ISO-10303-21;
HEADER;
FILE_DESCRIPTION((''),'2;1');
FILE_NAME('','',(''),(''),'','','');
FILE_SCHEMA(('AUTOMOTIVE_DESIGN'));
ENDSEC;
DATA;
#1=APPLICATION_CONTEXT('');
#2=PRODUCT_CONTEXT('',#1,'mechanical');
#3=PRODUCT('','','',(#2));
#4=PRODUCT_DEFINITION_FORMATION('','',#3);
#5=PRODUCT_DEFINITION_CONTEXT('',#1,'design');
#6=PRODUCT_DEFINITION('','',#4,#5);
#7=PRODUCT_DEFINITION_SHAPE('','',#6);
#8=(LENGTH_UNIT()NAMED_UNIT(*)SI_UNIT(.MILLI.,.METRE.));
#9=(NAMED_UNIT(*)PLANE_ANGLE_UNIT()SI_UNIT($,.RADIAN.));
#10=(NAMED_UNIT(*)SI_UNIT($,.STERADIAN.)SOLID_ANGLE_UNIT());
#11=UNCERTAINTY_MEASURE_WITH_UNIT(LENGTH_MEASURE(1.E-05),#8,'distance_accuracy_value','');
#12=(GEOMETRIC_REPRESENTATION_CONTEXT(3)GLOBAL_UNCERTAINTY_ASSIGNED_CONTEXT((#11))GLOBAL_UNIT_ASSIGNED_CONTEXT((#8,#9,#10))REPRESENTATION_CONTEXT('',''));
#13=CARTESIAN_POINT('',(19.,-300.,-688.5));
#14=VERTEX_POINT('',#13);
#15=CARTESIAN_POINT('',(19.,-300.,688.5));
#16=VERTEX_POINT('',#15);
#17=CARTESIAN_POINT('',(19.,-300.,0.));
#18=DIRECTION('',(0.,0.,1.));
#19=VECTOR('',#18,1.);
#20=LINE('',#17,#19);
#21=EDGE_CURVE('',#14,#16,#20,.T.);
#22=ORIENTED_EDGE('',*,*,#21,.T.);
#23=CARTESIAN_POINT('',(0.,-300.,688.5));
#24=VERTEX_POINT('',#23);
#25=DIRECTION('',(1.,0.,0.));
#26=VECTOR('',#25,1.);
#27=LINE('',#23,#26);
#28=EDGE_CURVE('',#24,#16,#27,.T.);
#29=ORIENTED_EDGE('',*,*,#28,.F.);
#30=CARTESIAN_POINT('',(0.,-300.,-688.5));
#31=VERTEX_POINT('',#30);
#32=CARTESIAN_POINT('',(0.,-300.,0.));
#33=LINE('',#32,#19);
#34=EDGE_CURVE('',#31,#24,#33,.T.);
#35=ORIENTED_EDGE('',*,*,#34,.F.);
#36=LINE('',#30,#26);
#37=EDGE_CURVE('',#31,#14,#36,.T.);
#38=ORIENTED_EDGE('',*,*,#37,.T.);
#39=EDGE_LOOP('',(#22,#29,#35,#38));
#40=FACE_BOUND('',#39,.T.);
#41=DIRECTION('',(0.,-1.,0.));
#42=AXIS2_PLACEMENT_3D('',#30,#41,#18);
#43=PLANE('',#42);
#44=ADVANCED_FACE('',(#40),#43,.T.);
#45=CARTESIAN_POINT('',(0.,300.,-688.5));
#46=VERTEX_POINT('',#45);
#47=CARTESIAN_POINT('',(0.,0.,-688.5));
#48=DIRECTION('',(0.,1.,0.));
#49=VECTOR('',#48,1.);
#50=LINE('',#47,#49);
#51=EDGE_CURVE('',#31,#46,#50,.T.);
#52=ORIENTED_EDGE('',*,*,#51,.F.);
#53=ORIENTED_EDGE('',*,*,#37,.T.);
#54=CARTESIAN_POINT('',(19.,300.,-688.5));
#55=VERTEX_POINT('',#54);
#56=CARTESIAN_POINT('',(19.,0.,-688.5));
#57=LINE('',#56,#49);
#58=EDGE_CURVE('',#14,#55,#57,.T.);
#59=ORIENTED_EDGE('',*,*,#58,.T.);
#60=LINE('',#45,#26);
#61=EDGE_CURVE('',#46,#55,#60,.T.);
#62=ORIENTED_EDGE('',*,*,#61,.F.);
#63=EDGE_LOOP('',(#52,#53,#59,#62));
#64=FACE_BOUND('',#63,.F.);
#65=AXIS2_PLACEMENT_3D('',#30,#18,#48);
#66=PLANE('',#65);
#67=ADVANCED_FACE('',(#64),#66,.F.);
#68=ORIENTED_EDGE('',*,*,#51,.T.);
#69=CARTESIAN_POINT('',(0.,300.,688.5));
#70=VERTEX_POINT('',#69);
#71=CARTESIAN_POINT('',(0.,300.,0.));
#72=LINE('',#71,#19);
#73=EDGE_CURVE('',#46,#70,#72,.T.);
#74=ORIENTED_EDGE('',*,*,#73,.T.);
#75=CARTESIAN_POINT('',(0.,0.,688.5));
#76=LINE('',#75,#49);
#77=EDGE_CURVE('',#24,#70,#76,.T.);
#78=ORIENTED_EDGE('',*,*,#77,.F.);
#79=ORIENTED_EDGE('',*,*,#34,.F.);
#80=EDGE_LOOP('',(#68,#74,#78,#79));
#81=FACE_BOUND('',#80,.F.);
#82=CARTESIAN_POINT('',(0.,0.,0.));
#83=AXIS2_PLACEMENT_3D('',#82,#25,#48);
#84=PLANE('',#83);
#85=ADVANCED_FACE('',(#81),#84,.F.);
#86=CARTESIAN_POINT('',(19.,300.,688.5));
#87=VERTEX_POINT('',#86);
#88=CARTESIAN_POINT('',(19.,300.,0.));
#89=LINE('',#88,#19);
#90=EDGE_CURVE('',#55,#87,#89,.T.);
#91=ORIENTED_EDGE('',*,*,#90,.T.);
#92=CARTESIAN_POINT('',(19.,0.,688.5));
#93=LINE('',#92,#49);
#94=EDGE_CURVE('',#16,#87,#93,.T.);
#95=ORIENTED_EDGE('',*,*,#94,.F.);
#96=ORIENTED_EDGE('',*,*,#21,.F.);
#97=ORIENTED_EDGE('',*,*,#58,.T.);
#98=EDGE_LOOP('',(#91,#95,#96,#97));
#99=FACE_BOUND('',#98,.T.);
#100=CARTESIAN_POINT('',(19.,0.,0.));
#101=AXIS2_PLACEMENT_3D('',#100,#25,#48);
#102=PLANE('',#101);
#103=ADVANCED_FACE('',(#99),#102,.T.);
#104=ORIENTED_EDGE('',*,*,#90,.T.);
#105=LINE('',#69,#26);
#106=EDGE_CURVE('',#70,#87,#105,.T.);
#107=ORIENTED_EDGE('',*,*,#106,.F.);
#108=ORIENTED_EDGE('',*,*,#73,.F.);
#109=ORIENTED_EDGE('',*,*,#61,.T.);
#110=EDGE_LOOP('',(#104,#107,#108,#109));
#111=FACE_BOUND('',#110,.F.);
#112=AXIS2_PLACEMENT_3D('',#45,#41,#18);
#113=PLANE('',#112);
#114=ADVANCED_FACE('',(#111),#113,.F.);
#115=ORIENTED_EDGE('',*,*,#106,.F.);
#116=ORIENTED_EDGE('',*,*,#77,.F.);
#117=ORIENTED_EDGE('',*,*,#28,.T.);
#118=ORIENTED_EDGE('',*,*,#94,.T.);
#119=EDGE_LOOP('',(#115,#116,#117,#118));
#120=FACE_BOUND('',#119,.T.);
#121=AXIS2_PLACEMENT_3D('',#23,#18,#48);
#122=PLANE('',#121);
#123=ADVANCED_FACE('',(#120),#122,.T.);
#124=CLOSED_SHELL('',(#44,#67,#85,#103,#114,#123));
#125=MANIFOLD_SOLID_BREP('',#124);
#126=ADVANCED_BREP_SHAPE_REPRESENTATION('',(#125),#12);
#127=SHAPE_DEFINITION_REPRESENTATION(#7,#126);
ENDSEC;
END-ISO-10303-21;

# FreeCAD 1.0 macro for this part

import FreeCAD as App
import Part
import Sketcher


def add_polygon(sketch, points):
    """Adds a closed chain of lines whose ends are joined by coincident constraints."""
    first, n = sketch.GeometryCount, len(points)
    for a, b in zip(points, points[1:] + points[:1]):
        sketch.addGeometry(Part.LineSegment(App.Vector(*a, 0), App.Vector(*b, 0)), False)
    for i in range(n):
        sketch.addConstraint(Sketcher.Constraint("Coincident", first + i, 2, first + (i + 1) % n, 1))

doc = App.newDocument("Part")
params = doc.addObject("Spreadsheet::Sheet", "Params")
for row, (alias, value) in enumerate([
    ("sketch1_width", "600 mm"),
    ("sketch1_height", "1377 mm"),
    ("pad1_length", "19 mm"),
], start=1):
    params.set(f"A{row}", alias)
    params.set(f"B{row}", "=" + value)
    params.setAlias(f"B{row}", alias)

body = doc.addObject("PartDesign::Body", "Body")

sketch1 = body.newObject("Sketcher::SketchObject", "Sketch")
sketch1.AttachmentSupport = (doc.getObject("YZ_Plane"), [""])
sketch1.MapMode = "FlatFace"
add_polygon(sketch1, [(-300, 688), (-300, -688), (300, -688), (300, 688)])
sketch1.addConstraint([
    Sketcher.Constraint("Vertical", 0),
    Sketcher.Constraint("Horizontal", 1),
    Sketcher.Constraint("Vertical", 2),
    Sketcher.Constraint("Horizontal", 3),
    Sketcher.Constraint("Symmetric", 0, 2, 2, 2, -1, 1),
    Sketcher.Constraint("DistanceX", 1, 1, 1, 2, 600.0),
    Sketcher.Constraint("DistanceY", 0, 2, 0, 1, 1377.0),
])
sketch1.setExpression("Constraints[9]", "Params.sketch1_width")
sketch1.setExpression("Constraints[10]", "Params.sketch1_height")
pad1 = body.newObject("PartDesign::Pad", "Pad")
pad1.Profile = sketch1
pad1.setExpression("Length", "Params.pad1_length")

doc.recompute()
